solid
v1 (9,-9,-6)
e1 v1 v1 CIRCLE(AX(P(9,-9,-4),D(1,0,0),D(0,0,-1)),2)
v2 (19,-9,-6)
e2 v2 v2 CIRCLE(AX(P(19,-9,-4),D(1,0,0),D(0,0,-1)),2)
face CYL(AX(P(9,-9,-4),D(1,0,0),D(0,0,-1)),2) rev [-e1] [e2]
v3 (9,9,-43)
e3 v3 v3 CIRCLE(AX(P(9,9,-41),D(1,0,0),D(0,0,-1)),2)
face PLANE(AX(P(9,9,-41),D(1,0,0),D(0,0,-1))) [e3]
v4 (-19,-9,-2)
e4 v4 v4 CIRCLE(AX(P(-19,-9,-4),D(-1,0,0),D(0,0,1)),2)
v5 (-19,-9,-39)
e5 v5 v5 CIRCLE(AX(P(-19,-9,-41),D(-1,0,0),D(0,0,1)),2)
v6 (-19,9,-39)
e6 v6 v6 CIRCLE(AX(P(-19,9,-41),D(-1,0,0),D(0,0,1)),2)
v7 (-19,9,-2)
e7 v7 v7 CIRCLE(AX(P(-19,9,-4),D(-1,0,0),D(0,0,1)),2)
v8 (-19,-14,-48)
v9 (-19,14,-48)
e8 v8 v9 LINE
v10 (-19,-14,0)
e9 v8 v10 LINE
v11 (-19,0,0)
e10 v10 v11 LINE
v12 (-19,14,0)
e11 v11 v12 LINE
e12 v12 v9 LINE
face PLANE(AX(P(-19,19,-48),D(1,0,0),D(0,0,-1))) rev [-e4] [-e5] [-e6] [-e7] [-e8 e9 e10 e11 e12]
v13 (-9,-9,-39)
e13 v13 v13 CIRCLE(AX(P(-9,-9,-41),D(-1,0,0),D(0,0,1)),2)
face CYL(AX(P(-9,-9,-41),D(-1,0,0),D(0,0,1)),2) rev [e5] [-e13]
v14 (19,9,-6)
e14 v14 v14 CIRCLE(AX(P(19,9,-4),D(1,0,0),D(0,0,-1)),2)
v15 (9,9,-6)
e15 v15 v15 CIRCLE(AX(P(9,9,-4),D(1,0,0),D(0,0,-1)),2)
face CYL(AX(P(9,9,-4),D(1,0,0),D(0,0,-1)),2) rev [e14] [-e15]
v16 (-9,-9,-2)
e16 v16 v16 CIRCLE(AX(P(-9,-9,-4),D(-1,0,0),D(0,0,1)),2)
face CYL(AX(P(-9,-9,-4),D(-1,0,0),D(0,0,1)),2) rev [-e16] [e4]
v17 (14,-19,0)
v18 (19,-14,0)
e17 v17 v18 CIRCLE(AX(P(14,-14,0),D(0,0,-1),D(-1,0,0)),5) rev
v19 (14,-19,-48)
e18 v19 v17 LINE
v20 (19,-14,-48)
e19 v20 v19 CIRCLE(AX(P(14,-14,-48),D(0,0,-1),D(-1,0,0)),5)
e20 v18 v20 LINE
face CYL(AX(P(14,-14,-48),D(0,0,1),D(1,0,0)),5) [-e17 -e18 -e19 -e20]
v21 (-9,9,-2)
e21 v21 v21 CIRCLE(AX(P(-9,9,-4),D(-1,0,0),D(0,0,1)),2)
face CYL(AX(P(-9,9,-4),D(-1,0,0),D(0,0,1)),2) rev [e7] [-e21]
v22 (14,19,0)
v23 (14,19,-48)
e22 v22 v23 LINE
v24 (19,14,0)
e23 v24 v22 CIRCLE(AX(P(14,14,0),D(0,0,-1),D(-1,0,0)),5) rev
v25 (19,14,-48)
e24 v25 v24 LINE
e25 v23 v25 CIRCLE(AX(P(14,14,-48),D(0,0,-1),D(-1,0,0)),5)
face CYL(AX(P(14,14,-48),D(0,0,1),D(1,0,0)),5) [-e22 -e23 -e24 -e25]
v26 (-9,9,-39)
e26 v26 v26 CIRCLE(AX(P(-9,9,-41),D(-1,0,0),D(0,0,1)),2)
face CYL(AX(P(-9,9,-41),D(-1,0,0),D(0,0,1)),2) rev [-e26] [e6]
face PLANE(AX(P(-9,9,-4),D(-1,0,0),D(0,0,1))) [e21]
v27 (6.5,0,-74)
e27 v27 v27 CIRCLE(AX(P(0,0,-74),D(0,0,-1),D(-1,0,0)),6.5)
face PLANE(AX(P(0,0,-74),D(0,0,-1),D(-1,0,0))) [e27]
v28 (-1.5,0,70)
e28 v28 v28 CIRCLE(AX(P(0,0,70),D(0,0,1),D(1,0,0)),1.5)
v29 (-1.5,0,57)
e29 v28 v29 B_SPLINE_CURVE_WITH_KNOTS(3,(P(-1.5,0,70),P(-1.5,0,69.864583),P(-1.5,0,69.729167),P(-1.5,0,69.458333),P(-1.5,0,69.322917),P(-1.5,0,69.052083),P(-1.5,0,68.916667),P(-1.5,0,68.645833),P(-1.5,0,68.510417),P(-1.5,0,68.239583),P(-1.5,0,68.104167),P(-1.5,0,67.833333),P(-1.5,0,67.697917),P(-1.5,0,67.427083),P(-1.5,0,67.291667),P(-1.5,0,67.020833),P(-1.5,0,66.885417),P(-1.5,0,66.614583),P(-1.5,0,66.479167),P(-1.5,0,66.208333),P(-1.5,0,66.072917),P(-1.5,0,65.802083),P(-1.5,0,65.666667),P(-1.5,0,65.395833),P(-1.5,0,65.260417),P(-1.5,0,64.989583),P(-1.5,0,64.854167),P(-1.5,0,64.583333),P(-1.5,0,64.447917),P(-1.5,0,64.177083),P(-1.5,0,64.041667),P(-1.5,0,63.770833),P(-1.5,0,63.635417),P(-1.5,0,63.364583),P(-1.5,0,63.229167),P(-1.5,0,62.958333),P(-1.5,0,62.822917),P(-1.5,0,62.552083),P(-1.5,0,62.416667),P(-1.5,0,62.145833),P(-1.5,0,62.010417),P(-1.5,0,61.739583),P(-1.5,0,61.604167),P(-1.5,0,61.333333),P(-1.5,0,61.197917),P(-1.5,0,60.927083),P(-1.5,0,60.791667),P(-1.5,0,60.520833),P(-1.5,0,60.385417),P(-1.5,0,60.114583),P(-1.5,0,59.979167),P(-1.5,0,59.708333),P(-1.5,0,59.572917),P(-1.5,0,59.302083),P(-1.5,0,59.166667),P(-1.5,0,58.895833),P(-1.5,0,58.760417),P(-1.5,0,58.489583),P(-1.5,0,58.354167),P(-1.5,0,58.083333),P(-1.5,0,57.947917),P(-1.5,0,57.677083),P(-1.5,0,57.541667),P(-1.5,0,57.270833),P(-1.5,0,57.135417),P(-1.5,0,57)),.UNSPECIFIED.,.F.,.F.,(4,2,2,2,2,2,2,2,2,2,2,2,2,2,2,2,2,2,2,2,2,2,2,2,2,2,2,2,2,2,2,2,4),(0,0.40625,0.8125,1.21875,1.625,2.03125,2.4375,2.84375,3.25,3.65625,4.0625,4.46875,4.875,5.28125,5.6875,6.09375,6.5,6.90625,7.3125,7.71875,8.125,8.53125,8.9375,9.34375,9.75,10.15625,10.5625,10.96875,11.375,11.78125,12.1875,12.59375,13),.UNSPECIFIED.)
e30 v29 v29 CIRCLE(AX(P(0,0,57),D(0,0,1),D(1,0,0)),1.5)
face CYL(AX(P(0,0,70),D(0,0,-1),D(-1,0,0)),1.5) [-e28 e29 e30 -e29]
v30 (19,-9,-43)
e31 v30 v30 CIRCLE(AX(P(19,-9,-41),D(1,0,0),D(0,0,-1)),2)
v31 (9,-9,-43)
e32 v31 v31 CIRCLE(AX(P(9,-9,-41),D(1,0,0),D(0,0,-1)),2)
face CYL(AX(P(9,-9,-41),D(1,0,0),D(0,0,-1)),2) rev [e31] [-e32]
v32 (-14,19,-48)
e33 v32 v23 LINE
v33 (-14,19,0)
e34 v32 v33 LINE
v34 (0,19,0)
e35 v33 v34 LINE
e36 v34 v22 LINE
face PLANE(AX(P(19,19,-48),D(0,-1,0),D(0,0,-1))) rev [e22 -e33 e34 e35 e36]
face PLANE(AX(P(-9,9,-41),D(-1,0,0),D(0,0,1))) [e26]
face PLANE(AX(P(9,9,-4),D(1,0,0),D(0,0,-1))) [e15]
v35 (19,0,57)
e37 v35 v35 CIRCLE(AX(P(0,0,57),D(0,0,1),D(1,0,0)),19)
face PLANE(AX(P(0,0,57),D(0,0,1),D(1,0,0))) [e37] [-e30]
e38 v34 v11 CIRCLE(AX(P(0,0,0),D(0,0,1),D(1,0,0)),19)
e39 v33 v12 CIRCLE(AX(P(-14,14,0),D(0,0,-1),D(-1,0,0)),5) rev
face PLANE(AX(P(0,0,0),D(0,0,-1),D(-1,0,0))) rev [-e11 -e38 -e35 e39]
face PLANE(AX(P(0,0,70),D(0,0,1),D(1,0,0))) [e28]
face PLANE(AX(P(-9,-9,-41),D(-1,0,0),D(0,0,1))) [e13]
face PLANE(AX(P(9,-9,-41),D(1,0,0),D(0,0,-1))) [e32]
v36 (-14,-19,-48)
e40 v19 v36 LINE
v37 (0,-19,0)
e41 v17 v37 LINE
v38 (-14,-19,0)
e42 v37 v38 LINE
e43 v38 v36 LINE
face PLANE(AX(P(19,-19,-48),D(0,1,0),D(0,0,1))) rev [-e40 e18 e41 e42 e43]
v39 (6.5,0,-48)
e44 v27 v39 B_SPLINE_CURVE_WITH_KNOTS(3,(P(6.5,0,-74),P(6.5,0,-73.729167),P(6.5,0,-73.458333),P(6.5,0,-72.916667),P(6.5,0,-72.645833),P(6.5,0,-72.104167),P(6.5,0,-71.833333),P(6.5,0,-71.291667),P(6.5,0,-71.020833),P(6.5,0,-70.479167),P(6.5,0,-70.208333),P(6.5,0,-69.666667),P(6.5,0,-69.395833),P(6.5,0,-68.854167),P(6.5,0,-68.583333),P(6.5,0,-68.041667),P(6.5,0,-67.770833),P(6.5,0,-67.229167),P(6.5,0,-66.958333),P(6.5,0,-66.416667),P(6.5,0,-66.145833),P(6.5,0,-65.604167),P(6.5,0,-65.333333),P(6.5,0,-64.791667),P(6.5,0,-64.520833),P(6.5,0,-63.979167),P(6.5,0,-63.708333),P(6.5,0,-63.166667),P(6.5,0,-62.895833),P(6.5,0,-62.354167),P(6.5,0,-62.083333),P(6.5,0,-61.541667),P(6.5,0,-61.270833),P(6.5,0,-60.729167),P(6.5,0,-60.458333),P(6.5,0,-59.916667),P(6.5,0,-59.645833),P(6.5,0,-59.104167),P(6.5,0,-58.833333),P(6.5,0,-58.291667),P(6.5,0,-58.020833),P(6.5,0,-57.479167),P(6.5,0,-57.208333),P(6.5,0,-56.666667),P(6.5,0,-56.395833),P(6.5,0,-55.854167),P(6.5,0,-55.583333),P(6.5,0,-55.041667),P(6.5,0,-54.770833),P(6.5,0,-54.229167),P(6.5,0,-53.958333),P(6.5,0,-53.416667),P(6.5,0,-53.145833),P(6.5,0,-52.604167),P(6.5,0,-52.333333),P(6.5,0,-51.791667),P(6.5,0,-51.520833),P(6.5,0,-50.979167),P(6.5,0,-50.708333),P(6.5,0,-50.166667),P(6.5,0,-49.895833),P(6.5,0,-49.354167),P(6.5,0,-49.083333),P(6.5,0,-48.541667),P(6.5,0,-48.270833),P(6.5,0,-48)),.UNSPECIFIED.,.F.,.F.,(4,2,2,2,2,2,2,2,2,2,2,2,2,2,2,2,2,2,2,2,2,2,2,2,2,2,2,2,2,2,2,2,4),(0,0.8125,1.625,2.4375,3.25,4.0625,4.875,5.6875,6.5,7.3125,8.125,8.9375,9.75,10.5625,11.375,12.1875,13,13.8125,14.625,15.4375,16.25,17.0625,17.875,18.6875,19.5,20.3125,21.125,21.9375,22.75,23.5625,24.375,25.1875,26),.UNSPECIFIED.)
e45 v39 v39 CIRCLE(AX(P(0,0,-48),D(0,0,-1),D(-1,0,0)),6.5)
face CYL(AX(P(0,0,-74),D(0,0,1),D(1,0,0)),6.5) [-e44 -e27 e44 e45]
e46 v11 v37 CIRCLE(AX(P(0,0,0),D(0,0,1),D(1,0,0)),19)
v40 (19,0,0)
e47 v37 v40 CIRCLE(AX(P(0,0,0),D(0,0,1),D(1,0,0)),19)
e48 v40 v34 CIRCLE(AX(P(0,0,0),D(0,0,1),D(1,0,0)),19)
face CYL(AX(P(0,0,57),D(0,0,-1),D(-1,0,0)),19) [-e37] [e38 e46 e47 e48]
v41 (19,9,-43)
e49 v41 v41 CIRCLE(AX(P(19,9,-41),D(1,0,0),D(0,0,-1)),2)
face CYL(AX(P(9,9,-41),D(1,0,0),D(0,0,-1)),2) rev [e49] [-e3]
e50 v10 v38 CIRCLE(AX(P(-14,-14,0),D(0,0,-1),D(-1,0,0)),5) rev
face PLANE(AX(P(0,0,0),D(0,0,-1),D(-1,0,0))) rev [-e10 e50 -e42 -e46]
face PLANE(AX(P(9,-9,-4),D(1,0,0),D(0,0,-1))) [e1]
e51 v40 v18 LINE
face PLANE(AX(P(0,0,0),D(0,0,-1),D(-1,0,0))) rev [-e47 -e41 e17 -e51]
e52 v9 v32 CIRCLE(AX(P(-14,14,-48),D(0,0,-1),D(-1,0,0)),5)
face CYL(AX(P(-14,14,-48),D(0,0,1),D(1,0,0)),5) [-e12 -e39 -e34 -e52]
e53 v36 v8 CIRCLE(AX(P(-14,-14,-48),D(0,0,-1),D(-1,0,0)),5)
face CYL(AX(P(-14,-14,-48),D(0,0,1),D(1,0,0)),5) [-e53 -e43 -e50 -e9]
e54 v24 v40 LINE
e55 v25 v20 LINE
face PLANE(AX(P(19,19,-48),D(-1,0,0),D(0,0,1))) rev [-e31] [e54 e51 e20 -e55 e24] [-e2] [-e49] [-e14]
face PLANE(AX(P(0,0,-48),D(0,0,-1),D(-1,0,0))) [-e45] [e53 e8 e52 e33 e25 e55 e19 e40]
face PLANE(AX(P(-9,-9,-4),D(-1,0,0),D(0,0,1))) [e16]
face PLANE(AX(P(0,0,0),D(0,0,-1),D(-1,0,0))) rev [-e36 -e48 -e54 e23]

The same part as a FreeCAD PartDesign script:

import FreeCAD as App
import Part
import Sketcher

V = App.Vector


def edges_at(feature, points):
    """Names of the edges that pass closest to the given points."""
    edges = feature.Shape.Edges
    near = lambda p: min(range(len(edges)), key=lambda i: edges[i].distToShape(Part.Vertex(*p))[0])
    return sorted({f"Edge{near(p) + 1}" for p in points})


def add_polygon(sketch, points):
    """Adds a closed chain of lines whose ends are joined by coincident constraints."""
    first, n = sketch.GeometryCount, len(points)
    for a, b in zip(points, points[1:] + points[:1]):
        sketch.addGeometry(Part.LineSegment(App.Vector(*a, 0), App.Vector(*b, 0)), False)
    for i in range(n):
        sketch.addConstraint(Sketcher.Constraint("Coincident", first + i, 2, first + (i + 1) % n, 1))

doc = App.newDocument("Part")
body = doc.addObject("PartDesign::Body", "Body")

# Sketch on XY plane
sketch1 = body.newObject("Sketcher::SketchObject", "Sketch")
sketch1.AttachmentSupport = (doc.getObject("XY_Plane"), [""])
sketch1.MapMode = "FlatFace"
sketch1.addGeometry(Part.Circle(V(0, 0, 0), V(0, 0, 1), 19), False)
sketch1.addConstraint([
    Sketcher.Constraint("Coincident", 0, 3, -1, 1),
    Sketcher.Constraint("Diameter", 0, 38.0),
])
pad1 = body.newObject("PartDesign::Pad", "Pad")
pad1.Profile = sketch1
pad1.Length = 57

# Sketch on XY plane
sketch2 = body.newObject("Sketcher::SketchObject", "Sketch001")
sketch2.AttachmentSupport = (doc.getObject("XY_Plane"), [""])
sketch2.MapMode = "FlatFace"
add_polygon(sketch2, [(19, 19), (19, -19), (-19, -19), (-19, 19)])  # lines 0-3
sketch2.addConstraint([
    Sketcher.Constraint("Vertical", 0),
    Sketcher.Constraint("Horizontal", 1),
    Sketcher.Constraint("Vertical", 2),
    Sketcher.Constraint("Horizontal", 3),
    Sketcher.Constraint("Symmetric", 0, 2, 2, 2, -1, 1),
    Sketcher.Constraint("Equal", 3, 0),
    Sketcher.Constraint("DistanceX", 1, 2, 1, 1, 38.0),
])
pad2 = body.newObject("PartDesign::Pad", "Pad001")
pad2.Profile = sketch2
pad2.Length = 48
pad2.Reversed = True

# Sketch on XY plane
sketch3 = body.newObject("Sketcher::SketchObject", "Sketch002")
sketch3.AttachmentSupport = (doc.getObject("XY_Plane"), [""])
sketch3.MapMode = "FlatFace"
sketch3.AttachmentOffset = App.Placement(V(0, 0, -48), App.Rotation())
sketch3.addGeometry(Part.Circle(V(0, 0, 0), V(0, 0, 1), 6.5), False)
sketch3.addConstraint([
    Sketcher.Constraint("Coincident", 0, 3, -1, 1),
    Sketcher.Constraint("Diameter", 0, 13.0),
])
pad3 = body.newObject("PartDesign::Pad", "Pad002")
pad3.Profile = sketch3
pad3.Length = 26
pad3.Reversed = True

# Sketch on XY plane
sketch4 = body.newObject("Sketcher::SketchObject", "Sketch003")
sketch4.AttachmentSupport = (doc.getObject("XY_Plane"), [""])
sketch4.MapMode = "FlatFace"
sketch4.AttachmentOffset = App.Placement(V(0, 0, 57), App.Rotation())
sketch4.addGeometry(Part.Circle(V(0, 0, 0), V(0, 0, 1), 1.5), False)
sketch4.addConstraint([
    Sketcher.Constraint("Coincident", 0, 3, -1, 1),
    Sketcher.Constraint("Diameter", 0, 3.0),
])
pad4 = body.newObject("PartDesign::Pad", "Pad003")
pad4.Profile = sketch4
pad4.Length = 13
doc.recompute()

fillet = body.newObject("PartDesign::Fillet", "Fillet")
fillet.Base = (pad4, edges_at(pad4, [
    (-19, -19, -24),
    (-19, 19, -24),
    (19, 19, -24),
    (19, -19, -24),
]))
fillet.Radius = 5

# Sketch on YZ plane
sketch5 = body.newObject("Sketcher::SketchObject", "Sketch004")
sketch5.AttachmentSupport = (doc.getObject("YZ_Plane"), [""])
sketch5.MapMode = "FlatFace"
sketch5.AttachmentOffset = App.Placement(V(0, 0, -19), App.Rotation())
sketch5.addGeometry([
    Part.Circle(V(9, -4, 0), V(0, 0, 1), 2),
    Part.Circle(V(-9, -4, 0), V(0, 0, 1), 2),
    Part.Circle(V(-9, -41, 0), V(0, 0, 1), 2),
    Part.Circle(V(9, -41, 0), V(0, 0, 1), 2),
], False)
sketch5.addConstraint([
    Sketcher.Constraint("Equal", 0, 1),
    Sketcher.Constraint("Equal", 1, 2),
    Sketcher.Constraint("Equal", 2, 3),
    Sketcher.Constraint("Symmetric", 0, 3, 1, 3, -2),
    Sketcher.Constraint("Symmetric", 2, 3, 3, 3, -2),
    Sketcher.Constraint("Vertical", 1, 3, 2, 3),
    Sketcher.Constraint("Diameter", 0, 4.0),
    Sketcher.Constraint("DistanceX", -1, 1, 0, 3, 9.0),
    Sketcher.Constraint("DistanceY", 0, 3, -1, 1, 4.0),
    Sketcher.Constraint("DistanceY", 2, 3, -1, 1, 41.0),
])
pocket1 = body.newObject("PartDesign::Pocket", "Pocket")
pocket1.Profile = sketch5
pocket1.Length = 10
pocket1.Reversed = True

# Sketch on YZ plane
sketch6 = body.newObject("Sketcher::SketchObject", "Sketch005")
sketch6.AttachmentSupport = (doc.getObject("YZ_Plane"), [""])
sketch6.MapMode = "FlatFace"
sketch6.AttachmentOffset = App.Placement(V(0, 0, 9), App.Rotation())
sketch6.addGeometry([
    Part.Circle(V(9, -41, 0), V(0, 0, 1), 2),
    Part.Circle(V(-9, -41, 0), V(0, 0, 1), 2),
    Part.Circle(V(-9, -4, 0), V(0, 0, 1), 2),
    Part.Circle(V(9, -4, 0), V(0, 0, 1), 2),
], False)
sketch6.addConstraint([
    Sketcher.Constraint("Equal", 0, 1),
    Sketcher.Constraint("Equal", 1, 2),
    Sketcher.Constraint("Equal", 2, 3),
    Sketcher.Constraint("Symmetric", 0, 3, 1, 3, -2),
    Sketcher.Constraint("Symmetric", 2, 3, 3, 3, -2),
    Sketcher.Constraint("Vertical", 1, 3, 2, 3),
    Sketcher.Constraint("Diameter", 0, 4.0),
    Sketcher.Constraint("DistanceX", -1, 1, 0, 3, 9.0),
    Sketcher.Constraint("DistanceY", 0, 3, -1, 1, 41.0),
    Sketcher.Constraint("DistanceY", 2, 3, -1, 1, 4.0),
])
pocket2 = body.newObject("PartDesign::Pocket", "Pocket001")
pocket2.Profile = sketch6
pocket2.Length = 10
pocket2.Reversed = True

doc.recompute()
